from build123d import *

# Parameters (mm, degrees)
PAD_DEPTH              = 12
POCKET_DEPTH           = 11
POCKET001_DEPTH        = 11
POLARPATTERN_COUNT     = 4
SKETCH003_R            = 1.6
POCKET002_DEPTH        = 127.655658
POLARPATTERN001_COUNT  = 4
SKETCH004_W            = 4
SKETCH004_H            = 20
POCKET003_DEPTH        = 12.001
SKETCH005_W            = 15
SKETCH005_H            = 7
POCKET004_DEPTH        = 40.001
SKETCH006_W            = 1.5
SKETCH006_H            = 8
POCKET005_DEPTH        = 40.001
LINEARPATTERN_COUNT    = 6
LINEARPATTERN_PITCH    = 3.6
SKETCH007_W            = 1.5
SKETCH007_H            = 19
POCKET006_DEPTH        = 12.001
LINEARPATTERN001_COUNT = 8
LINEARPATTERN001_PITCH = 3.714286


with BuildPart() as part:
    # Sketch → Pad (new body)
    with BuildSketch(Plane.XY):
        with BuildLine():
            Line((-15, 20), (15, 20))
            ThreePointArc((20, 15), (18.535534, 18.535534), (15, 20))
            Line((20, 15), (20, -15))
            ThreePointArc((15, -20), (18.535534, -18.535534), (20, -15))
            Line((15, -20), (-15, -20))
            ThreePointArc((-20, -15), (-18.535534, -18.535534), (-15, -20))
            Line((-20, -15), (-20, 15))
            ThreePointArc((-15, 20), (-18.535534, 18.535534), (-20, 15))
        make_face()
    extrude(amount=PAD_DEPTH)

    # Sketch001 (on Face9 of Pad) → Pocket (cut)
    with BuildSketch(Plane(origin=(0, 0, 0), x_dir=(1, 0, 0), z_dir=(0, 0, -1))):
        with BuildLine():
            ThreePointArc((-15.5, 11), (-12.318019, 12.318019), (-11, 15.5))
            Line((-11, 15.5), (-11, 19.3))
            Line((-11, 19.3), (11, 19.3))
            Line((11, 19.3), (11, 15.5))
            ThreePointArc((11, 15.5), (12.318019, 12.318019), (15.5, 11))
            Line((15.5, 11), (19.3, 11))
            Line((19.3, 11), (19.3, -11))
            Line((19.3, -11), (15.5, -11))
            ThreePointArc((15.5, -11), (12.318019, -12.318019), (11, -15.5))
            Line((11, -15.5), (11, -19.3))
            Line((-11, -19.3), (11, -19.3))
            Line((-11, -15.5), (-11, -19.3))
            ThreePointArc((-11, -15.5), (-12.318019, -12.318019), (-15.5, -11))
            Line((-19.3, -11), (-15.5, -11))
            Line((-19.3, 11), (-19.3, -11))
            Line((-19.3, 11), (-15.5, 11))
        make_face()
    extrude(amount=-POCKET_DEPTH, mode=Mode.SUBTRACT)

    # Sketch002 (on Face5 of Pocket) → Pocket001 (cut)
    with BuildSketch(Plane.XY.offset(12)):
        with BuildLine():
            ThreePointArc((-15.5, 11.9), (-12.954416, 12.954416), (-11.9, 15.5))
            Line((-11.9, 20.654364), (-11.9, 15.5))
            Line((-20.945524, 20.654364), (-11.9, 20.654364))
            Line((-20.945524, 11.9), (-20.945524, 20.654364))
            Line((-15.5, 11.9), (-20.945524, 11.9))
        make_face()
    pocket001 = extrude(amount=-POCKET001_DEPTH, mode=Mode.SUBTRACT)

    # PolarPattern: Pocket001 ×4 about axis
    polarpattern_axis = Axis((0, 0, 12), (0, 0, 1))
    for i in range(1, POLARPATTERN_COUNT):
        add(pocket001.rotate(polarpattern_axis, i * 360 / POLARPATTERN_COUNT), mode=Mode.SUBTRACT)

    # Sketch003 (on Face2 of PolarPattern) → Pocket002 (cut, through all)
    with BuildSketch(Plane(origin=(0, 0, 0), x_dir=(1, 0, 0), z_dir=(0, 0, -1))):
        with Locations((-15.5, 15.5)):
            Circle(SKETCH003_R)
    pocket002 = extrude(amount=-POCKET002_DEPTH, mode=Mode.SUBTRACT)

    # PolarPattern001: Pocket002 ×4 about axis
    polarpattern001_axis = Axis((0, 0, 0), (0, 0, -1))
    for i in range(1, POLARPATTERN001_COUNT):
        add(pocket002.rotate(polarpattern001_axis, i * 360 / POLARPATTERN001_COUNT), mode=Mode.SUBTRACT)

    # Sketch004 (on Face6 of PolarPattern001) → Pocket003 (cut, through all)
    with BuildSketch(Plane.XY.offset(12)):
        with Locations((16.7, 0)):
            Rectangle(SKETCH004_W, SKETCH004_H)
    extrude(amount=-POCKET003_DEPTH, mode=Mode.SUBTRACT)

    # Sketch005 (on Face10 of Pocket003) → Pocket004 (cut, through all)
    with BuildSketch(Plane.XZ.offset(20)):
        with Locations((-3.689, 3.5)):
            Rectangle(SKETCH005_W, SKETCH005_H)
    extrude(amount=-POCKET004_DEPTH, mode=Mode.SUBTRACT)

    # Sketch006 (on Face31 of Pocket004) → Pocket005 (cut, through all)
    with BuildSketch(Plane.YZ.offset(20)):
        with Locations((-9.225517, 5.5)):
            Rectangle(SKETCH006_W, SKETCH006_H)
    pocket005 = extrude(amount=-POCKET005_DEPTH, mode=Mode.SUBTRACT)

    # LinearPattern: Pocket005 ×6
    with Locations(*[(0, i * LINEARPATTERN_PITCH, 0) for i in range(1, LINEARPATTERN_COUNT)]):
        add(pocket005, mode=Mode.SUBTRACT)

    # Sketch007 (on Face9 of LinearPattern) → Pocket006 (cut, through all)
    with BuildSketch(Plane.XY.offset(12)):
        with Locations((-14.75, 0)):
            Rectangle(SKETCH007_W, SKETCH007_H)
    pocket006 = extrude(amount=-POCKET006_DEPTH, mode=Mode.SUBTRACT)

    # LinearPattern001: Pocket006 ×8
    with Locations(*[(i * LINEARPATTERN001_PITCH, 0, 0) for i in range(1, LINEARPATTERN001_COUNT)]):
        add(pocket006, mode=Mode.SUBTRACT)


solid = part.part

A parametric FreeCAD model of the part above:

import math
import FreeCAD as App
import Part
import Sketcher
from FreeCAD import Vector


def add_polygon(sketch, points):
    """Adds a closed chain of lines whose ends are joined by coincident constraints."""
    first, n = sketch.GeometryCount, len(points)
    for a, b in zip(points, points[1:] + points[:1]):
        sketch.addGeometry(Part.LineSegment(App.Vector(*a, 0), App.Vector(*b, 0)), False)
    for i in range(n):
        sketch.addConstraint(Sketcher.Constraint("Coincident", first + i, 2, first + (i + 1) % n, 1))

doc = App.newDocument("Part")
body = doc.addObject("PartDesign::Body", "Body")

sketch1 = body.newObject("Sketcher::SketchObject", "Sketch")
sketch1.AttachmentSupport = (doc.getObject("XY_Plane"), [""])
sketch1.MapMode = "FlatFace"
sketch1.addGeometry([
    Part.LineSegment(Vector(15, 20, 0), Vector(-15, 20, 0)),
    Part.ArcOfCircle(Part.Circle(Vector(-15, 15, 0), Vector(0, 0, 1), 5), math.radians(89.999996), math.radians(180.000004)),
    Part.LineSegment(Vector(-20, 15, 0), Vector(-20, -15, 0)),
    Part.ArcOfCircle(Part.Circle(Vector(-15, -15, 0), Vector(0, 0, 1), 5), math.radians(179.999996), math.radians(270.000004)),
    Part.LineSegment(Vector(-15, -20, 0), Vector(15, -20, 0)),
    Part.ArcOfCircle(Part.Circle(Vector(15, -15, 0), Vector(0, 0, 1), 5), math.radians(-90.000004), math.radians(0.000004)),
    Part.LineSegment(Vector(20, -15, 0), Vector(20, 15, 0)),
    Part.ArcOfCircle(Part.Circle(Vector(15, 15, 0), Vector(0, 0, 1), 5), math.radians(-0.000004), math.radians(90.000004)),
], False)
sketch1.addConstraint([
    Sketcher.Constraint("Tangent", 0, 2, 1, 1),
    Sketcher.Constraint("Tangent", 1, 2, 2, 1),
    Sketcher.Constraint("Tangent", 2, 2, 3, 1),
    Sketcher.Constraint("Tangent", 3, 2, 4, 1),
    Sketcher.Constraint("Tangent", 4, 2, 5, 1),
    Sketcher.Constraint("Tangent", 5, 2, 6, 1),
    Sketcher.Constraint("Tangent", 6, 2, 7, 1),
    Sketcher.Constraint("Tangent", 7, 2, 0, 1),
    Sketcher.Constraint("Horizontal", 0),
    Sketcher.Constraint("Vertical", 2),
    Sketcher.Constraint("Horizontal", 4),
    Sketcher.Constraint("Vertical", 6),
    Sketcher.Constraint("Equal", 1, 3),
    Sketcher.Constraint("Equal", 3, 5),
    Sketcher.Constraint("Equal", 5, 7),
    Sketcher.Constraint("Symmetric", 1, 3, 5, 3, -1, 1),
    Sketcher.Constraint("Equal", 4, 2),
    Sketcher.Constraint("Radius", 1, 5.0),
    Sketcher.Constraint("DistanceX", 0, 2, 0, 1, 30.0),
])
pad1 = body.newObject("PartDesign::Pad", "Pad")
pad1.Profile = sketch1
pad1.Length = 12

sketch2 = body.newObject("Sketcher::SketchObject", "Sketch001")
sketch2.AttachmentSupport = (doc.getObject("XY_Plane"), [""])
sketch2.MapMode = "FlatFace"
sketch2.addGeometry([
    Part.ArcOfCircle(Part.Circle(Vector(-15.499998, -15.499998, 0), Vector(0, 0, 1), 4.499998), math.radians(-0.000021), math.radians(90.000021)),
    Part.LineSegment(Vector(-15.5, -11, 0), Vector(-19.3, -11, 0)),
    Part.LineSegment(Vector(-19.3, -11, 0), Vector(-19.3, 11, 0)),
    Part.LineSegment(Vector(-19.3, 11, 0), Vector(-15.5, 11, 0)),
    Part.ArcOfCircle(Part.Circle(Vector(-15.499998, 15.499998, 0), Vector(0, 0, 1), 4.499998), math.radians(-90.000021), math.radians(0.000021)),
    Part.LineSegment(Vector(-11, 15.5, 0), Vector(-11, 19.3, 0)),
    Part.LineSegment(Vector(-11, 19.3, 0), Vector(11, 19.3, 0)),
    Part.LineSegment(Vector(11, 19.3, 0), Vector(11, 15.5, 0)),
    Part.ArcOfCircle(Part.Circle(Vector(15.499998, 15.499998, 0), Vector(0, 0, 1), 4.499998), math.radians(179.999979), math.radians(270.000021)),
    Part.LineSegment(Vector(15.5, 11, 0), Vector(19.3, 11, 0)),
    Part.LineSegment(Vector(19.3, 11, 0), Vector(19.3, -11, 0)),
    Part.LineSegment(Vector(19.3, -11, 0), Vector(15.5, -11, 0)),
    Part.ArcOfCircle(Part.Circle(Vector(15.499998, -15.499998, 0), Vector(0, 0, 1), 4.499998), math.radians(89.999979), math.radians(180.000021)),
    Part.LineSegment(Vector(11, -15.5, 0), Vector(11, -19.3, 0)),
    Part.LineSegment(Vector(11, -19.3, 0), Vector(-11, -19.3, 0)),
    Part.LineSegment(Vector(-11, -19.3, 0), Vector(-11, -15.5, 0)),
], False)
sketch2.addConstraint([
    Sketcher.Constraint("Tangent", 0, 2, 1, 1),
    Sketcher.Constraint("Coincident", 1, 2, 2, 1),
    Sketcher.Constraint("Coincident", 2, 2, 3, 1),
    Sketcher.Constraint("Tangent", 3, 2, 4, 1),
    Sketcher.Constraint("Tangent", 4, 2, 5, 1),
    Sketcher.Constraint("Coincident", 5, 2, 6, 1),
    Sketcher.Constraint("Coincident", 6, 2, 7, 1),
    Sketcher.Constraint("Tangent", 7, 2, 8, 1),
    Sketcher.Constraint("Tangent", 8, 2, 9, 1),
    Sketcher.Constraint("Coincident", 9, 2, 10, 1),
    Sketcher.Constraint("Coincident", 10, 2, 11, 1),
    Sketcher.Constraint("Tangent", 11, 2, 12, 1),
    Sketcher.Constraint("Tangent", 12, 2, 13, 1),
    Sketcher.Constraint("Coincident", 13, 2, 14, 1),
    Sketcher.Constraint("Coincident", 14, 2, 15, 1),
    Sketcher.Constraint("Tangent", 15, 2, 0, 1),
    Sketcher.Constraint("Horizontal", 1),
    Sketcher.Constraint("Vertical", 2),
    Sketcher.Constraint("Horizontal", 3),
    Sketcher.Constraint("Vertical", 5),
    Sketcher.Constraint("Horizontal", 6),
    Sketcher.Constraint("Vertical", 7),
    Sketcher.Constraint("Horizontal", 9),
    Sketcher.Constraint("Vertical", 10),
    Sketcher.Constraint("Horizontal", 11),
    Sketcher.Constraint("Vertical", 13),
    Sketcher.Constraint("Horizontal", 14),
    Sketcher.Constraint("Vertical", 15),
    Sketcher.Constraint("Equal", 0, 4),
    Sketcher.Constraint("Equal", 4, 8),
    Sketcher.Constraint("Equal", 8, 12),
    Sketcher.Constraint("Symmetric", 0, 3, 8, 3, -1, 1),
    Sketcher.Constraint("Symmetric", 4, 3, 12, 3, -1, 1),
    Sketcher.Constraint("Symmetric", 4, 3, 8, 3, -2),
    Sketcher.Constraint("Equal", 3, 9),
    Sketcher.Constraint("Equal", 14, 2),
    Sketcher.Constraint("Equal", 11, 5),
    Sketcher.Constraint("Equal", 7, 13),
    Sketcher.Constraint("Radius", 0, 4.499998),
    Sketcher.Constraint("DistanceX", 6, 1, 6, 2, 22.0),
    Sketcher.Constraint("DistanceX", 1, 2, 1, 1, 3.8),
])
pocket1 = body.newObject("PartDesign::Pocket", "Pocket")
pocket1.Profile = sketch2
pocket1.Length = 11
pocket1.Reversed = True

sketch3 = body.newObject("Sketcher::SketchObject", "Sketch002")
sketch3.AttachmentSupport = (doc.getObject("XY_Plane"), [""])
sketch3.MapMode = "FlatFace"
sketch3.AttachmentOffset = App.Placement(Vector(0, 0, 12), App.Rotation())
sketch3.addGeometry([
    Part.ArcOfCircle(Part.Circle(Vector(-15.500001, 15.500001, 0), Vector(0, 0, 1), 3.600001), math.radians(-89.999978), math.radians(-0.000022)),
    Part.LineSegment(Vector(-11.9, 15.5, 0), Vector(-11.9, 20.654364, 0)),
    Part.LineSegment(Vector(-11.9, 20.654364, 0), Vector(-20.945524, 20.654364, 0)),
    Part.LineSegment(Vector(-20.945524, 20.654364, 0), Vector(-20.945524, 11.9, 0)),
    Part.LineSegment(Vector(-20.945524, 11.9, 0), Vector(-15.5, 11.9, 0)),
], False)
sketch3.addConstraint([
    Sketcher.Constraint("Tangent", 0, 2, 1, 1),
    Sketcher.Constraint("Coincident", 1, 2, 2, 1),
    Sketcher.Constraint("Coincident", 2, 2, 3, 1),
    Sketcher.Constraint("Coincident", 3, 2, 4, 1),
    Sketcher.Constraint("Tangent", 4, 2, 0, 1),
    Sketcher.Constraint("Vertical", 1),
    Sketcher.Constraint("Horizontal", 2),
    Sketcher.Constraint("Vertical", 3),
    Sketcher.Constraint("Horizontal", 4),
    Sketcher.Constraint("Radius", 0, 3.600001),
    Sketcher.Constraint("DistanceX", 0, 3, -1, 1, 15.500001),
    Sketcher.Constraint("DistanceY", -1, 1, 0, 3, 15.500001),
    Sketcher.Constraint("DistanceX", 2, 2, 2, 1, 9.045524),
    Sketcher.Constraint("DistanceY", 1, 1, 1, 2, 5.154364),
])
pocket2 = body.newObject("PartDesign::Pocket", "Pocket001")
pocket2.Profile = sketch3
pocket2.Length = 11
doc.recompute()

polarpattern = body.newObject("PartDesign::PolarPattern", "PolarPattern")
polarpattern.Originals = [pocket2]
polarpattern.Axis = (doc.getObject("Z_Axis"), [""])
polarpattern.Angle = 360
polarpattern.Occurrences = 4
body.Tip = polarpattern

sketch4 = body.newObject("Sketcher::SketchObject", "Sketch003")
sketch4.AttachmentSupport = (doc.getObject("XY_Plane"), [""])
sketch4.MapMode = "FlatFace"
sketch4.addGeometry(Part.Circle(Vector(-15.5, -15.5, 0), Vector(0, 0, 1), 1.6), False)
sketch4.addConstraint([
    Sketcher.Constraint("Diameter", 0, 3.2),
    Sketcher.Constraint("DistanceX", 0, 3, -1, 1, 15.5),
    Sketcher.Constraint("DistanceY", 0, 3, -1, 1, 15.5),
])
pocket3 = body.newObject("PartDesign::Pocket", "Pocket002")
pocket3.Profile = sketch4
pocket3.Type = "ThroughAll"
pocket3.Reversed = True
doc.recompute()

polarpattern2 = body.newObject("PartDesign::PolarPattern", "PolarPattern001")
polarpattern2.Originals = [pocket3]
polarpattern2.Axis = (doc.getObject("Z_Axis"), [""])
polarpattern2.Angle = 360
polarpattern2.Occurrences = 4
body.Tip = polarpattern2

sketch5 = body.newObject("Sketcher::SketchObject", "Sketch004")
sketch5.AttachmentSupport = (doc.getObject("XY_Plane"), [""])
sketch5.MapMode = "FlatFace"
sketch5.AttachmentOffset = App.Placement(Vector(0, 0, 12), App.Rotation())
add_polygon(sketch5, [(14.7, 10), (14.7, -10), (18.7, -10), (18.7, 10)])
sketch5.addConstraint([
    Sketcher.Constraint("Vertical", 0),
    Sketcher.Constraint("Horizontal", 1),
    Sketcher.Constraint("Vertical", 2),
    Sketcher.Constraint("Horizontal", 3),
    Sketcher.Constraint("DistanceX", 1, 1, 1, 2, 4.0),
    Sketcher.Constraint("DistanceY", 0, 2, 0, 1, 20.0),
    Sketcher.Constraint("DistanceY", 0, 2, -1, 1, 10.0),
    Sketcher.Constraint("DistanceX", -1, 1, 0, 2, 14.7),
])
pocket4 = body.newObject("PartDesign::Pocket", "Pocket003")
pocket4.Profile = sketch5
pocket4.Type = "ThroughAll"

sketch6 = body.newObject("Sketcher::SketchObject", "Sketch005")
sketch6.AttachmentSupport = (doc.getObject("XZ_Plane"), [""])
sketch6.MapMode = "FlatFace"
sketch6.AttachmentOffset = App.Placement(Vector(0, 0, 20), App.Rotation())
add_polygon(sketch6, [(-11.189, 7), (-11.189, 0), (3.811, 0), (3.811, 7)])
sketch6.addConstraint([
    Sketcher.Constraint("Vertical", 0),
    Sketcher.Constraint("Horizontal", 1),
    Sketcher.Constraint("Vertical", 2),
    Sketcher.Constraint("Horizontal", 3),
    Sketcher.Constraint("PointOnObject", 0, 2, -1),
    Sketcher.Constraint("DistanceX", 1, 1, 1, 2, 15.0),
    Sketcher.Constraint("DistanceY", 0, 2, 0, 1, 7.0),
    Sketcher.Constraint("DistanceX", 0, 2, -1, 1, 11.189),
])
pocket5 = body.newObject("PartDesign::Pocket", "Pocket004")
pocket5.Profile = sketch6
pocket5.Type = "ThroughAll"

sketch7 = body.newObject("Sketcher::SketchObject", "Sketch006")
sketch7.AttachmentSupport = (doc.getObject("YZ_Plane"), [""])
sketch7.MapMode = "FlatFace"
sketch7.AttachmentOffset = App.Placement(Vector(0, 0, 20), App.Rotation())
add_polygon(sketch7, [(-9.975517, 9.5), (-9.975517, 1.5), (-8.475517, 1.5), (-8.475517, 9.5)])
sketch7.addConstraint([
    Sketcher.Constraint("Vertical", 0),
    Sketcher.Constraint("Horizontal", 1),
    Sketcher.Constraint("Vertical", 2),
    Sketcher.Constraint("Horizontal", 3),
    Sketcher.Constraint("DistanceY", 0, 2, 0, 1, 8.0),
    Sketcher.Constraint("DistanceX", 1, 1, 1, 2, 1.5),
    Sketcher.Constraint("DistanceY", -1, 1, 0, 2, 1.5),
    Sketcher.Constraint("DistanceX", 0, 2, -1, 1, 9.975517),
])
pocket6 = body.newObject("PartDesign::Pocket", "Pocket005")
pocket6.Profile = sketch7
pocket6.Type = "ThroughAll"
doc.recompute()

linearpattern = body.newObject("PartDesign::LinearPattern", "LinearPattern")
linearpattern.Originals = [pocket6]
linearpattern.Direction = (doc.getObject("Y_Axis"), [""])
linearpattern.Mode = "offset"
linearpattern.Offset = 3.6
linearpattern.Occurrences = 6
body.Tip = linearpattern

sketch8 = body.newObject("Sketcher::SketchObject", "Sketch007")
sketch8.AttachmentSupport = (doc.getObject("XY_Plane"), [""])
sketch8.MapMode = "FlatFace"
sketch8.AttachmentOffset = App.Placement(Vector(0, 0, 12), App.Rotation())
add_polygon(sketch8, [(-15.5, 9.5), (-15.5, -9.5), (-14, -9.5), (-14, 9.5)])
sketch8.addConstraint([
    Sketcher.Constraint("Vertical", 0),
    Sketcher.Constraint("Horizontal", 1),
    Sketcher.Constraint("Vertical", 2),
    Sketcher.Constraint("Horizontal", 3),
    Sketcher.Constraint("DistanceY", 0, 2, 0, 1, 19.0),
    Sketcher.Constraint("DistanceX", 1, 1, 1, 2, 1.5),
    Sketcher.Constraint("DistanceX", 1, 2, -1, 1, 14.0),
    Sketcher.Constraint("DistanceY", 0, 2, -1, 1, 9.5),
])
pocket7 = body.newObject("PartDesign::Pocket", "Pocket006")
pocket7.Profile = sketch8
pocket7.Type = "ThroughAll"
doc.recompute()

linearpattern2 = body.newObject("PartDesign::LinearPattern", "LinearPattern001")
linearpattern2.Originals = [pocket7]
linearpattern2.Direction = (doc.getObject("X_Axis"), [""])
linearpattern2.Mode = "offset"
linearpattern2.Offset = 3.714286
linearpattern2.Occurrences = 8
body.Tip = linearpattern2

doc.recompute()
